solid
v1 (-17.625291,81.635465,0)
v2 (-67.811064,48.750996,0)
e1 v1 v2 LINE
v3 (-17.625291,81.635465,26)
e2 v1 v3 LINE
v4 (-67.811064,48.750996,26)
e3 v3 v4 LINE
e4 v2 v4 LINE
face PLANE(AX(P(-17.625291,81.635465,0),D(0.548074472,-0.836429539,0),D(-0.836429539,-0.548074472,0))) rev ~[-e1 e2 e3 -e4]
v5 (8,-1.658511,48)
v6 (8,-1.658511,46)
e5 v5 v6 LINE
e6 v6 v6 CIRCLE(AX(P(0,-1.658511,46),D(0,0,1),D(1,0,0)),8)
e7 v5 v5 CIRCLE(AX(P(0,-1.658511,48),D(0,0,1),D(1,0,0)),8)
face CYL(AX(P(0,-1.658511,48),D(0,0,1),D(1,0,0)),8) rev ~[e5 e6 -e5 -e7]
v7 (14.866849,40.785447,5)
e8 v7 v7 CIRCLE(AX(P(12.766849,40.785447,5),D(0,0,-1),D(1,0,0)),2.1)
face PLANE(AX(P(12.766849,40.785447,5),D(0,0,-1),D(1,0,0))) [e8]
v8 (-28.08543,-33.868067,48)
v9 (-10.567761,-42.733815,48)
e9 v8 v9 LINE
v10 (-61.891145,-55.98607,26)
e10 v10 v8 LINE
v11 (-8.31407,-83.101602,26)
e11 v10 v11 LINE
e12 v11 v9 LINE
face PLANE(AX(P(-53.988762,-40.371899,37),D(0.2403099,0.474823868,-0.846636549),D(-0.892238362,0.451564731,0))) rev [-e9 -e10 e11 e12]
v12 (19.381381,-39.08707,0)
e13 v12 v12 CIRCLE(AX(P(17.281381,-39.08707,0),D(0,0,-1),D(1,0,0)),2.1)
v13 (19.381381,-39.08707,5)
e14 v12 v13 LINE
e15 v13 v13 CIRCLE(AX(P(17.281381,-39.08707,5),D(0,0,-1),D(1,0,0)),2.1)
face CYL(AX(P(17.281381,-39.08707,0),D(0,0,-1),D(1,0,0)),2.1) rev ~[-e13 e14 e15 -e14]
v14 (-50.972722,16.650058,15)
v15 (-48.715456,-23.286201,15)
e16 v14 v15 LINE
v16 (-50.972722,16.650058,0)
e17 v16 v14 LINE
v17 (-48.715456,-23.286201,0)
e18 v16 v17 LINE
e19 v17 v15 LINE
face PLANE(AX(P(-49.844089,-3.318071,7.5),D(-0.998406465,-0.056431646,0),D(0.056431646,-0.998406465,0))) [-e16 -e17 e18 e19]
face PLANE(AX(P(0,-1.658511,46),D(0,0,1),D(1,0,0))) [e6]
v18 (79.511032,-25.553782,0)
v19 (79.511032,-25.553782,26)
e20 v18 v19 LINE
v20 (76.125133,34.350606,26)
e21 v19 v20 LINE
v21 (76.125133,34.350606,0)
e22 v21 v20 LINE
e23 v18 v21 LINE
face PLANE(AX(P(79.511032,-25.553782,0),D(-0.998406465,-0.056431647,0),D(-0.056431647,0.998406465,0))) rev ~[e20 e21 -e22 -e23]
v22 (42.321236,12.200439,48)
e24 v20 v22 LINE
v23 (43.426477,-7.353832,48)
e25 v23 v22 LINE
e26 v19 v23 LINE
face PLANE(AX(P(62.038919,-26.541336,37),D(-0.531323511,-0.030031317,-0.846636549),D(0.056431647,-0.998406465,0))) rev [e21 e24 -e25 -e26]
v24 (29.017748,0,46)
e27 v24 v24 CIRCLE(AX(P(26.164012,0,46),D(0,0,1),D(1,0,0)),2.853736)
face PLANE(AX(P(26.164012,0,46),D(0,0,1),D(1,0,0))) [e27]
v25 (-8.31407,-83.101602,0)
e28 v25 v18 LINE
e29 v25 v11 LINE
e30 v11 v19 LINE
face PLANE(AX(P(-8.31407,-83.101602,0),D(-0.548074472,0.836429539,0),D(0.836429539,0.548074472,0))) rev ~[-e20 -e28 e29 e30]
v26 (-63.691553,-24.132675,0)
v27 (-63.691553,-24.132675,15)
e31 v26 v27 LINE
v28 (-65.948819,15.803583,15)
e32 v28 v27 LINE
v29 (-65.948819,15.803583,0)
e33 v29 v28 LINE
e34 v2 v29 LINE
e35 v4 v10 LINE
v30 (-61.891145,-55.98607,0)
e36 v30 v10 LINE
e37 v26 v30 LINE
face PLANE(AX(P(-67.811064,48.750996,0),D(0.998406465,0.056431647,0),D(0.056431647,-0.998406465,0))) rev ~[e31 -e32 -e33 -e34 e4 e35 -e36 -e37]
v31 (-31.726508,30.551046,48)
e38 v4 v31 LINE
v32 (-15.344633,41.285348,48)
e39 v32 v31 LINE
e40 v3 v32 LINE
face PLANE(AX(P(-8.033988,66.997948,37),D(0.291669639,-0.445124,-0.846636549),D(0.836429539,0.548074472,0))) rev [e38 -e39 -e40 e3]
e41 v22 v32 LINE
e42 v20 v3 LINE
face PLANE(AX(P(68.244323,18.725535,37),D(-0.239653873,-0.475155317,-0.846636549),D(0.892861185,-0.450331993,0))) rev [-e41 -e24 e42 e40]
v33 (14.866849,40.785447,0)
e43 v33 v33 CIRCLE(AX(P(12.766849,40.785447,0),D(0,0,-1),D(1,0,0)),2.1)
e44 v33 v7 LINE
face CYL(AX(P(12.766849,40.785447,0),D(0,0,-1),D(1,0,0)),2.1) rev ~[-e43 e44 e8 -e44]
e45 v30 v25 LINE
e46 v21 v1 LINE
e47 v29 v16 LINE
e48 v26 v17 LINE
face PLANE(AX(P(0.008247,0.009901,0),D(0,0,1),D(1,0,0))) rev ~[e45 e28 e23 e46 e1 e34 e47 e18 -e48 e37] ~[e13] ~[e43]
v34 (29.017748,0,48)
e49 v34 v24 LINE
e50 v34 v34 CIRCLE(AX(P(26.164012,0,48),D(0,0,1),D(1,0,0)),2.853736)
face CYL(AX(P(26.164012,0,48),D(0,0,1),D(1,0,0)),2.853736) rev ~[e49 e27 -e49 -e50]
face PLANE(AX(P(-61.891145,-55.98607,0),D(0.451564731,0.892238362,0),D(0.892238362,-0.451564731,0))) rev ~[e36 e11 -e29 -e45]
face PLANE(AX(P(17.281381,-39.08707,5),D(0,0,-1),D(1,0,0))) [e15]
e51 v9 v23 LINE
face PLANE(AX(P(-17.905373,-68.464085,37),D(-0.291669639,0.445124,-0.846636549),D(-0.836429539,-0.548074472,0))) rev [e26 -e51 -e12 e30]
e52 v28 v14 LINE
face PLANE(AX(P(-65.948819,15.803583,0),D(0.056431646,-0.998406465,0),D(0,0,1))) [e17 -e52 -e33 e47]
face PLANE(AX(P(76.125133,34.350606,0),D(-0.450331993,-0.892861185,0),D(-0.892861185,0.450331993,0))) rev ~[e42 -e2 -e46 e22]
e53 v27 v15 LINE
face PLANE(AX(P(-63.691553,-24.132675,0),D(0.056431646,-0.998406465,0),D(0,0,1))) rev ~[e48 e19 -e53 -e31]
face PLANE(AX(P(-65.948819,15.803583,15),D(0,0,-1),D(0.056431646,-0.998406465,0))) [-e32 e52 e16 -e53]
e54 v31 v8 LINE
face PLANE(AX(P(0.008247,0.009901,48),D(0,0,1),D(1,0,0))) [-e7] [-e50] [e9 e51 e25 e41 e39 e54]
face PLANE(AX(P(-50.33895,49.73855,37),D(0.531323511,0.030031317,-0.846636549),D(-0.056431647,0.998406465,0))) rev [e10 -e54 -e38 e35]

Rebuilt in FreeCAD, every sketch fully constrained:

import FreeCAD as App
import Part
import Sketcher
Q = App.Units.Quantity


def edges_at(feature, points):
    """Names of the edges that pass closest to the given points."""
    edges = feature.Shape.Edges
    near = lambda p: min(range(len(edges)), key=lambda i: edges[i].distToShape(Part.Vertex(*p))[0])
    return sorted({f"Edge{near(p) + 1}" for p in points})

doc = App.newDocument("Part")
body = doc.addObject("PartDesign::Body", "Body")

sketch1 = body.newObject("Sketcher::SketchObject", "Sketch")
sketch1.AttachmentSupport = (doc.getObject("XY_Plane"), [""])
sketch1.MapMode = "FlatFace"
sketch1.addGeometry([
    Part.LineSegment(App.Vector(-8, -83, 0), App.Vector(80, -26, 0)),
    Part.LineSegment(App.Vector(80, -26, 0), App.Vector(76, 34, 0)),
    Part.LineSegment(App.Vector(76, 34, 0), App.Vector(-18, 82, 0)),
    Part.LineSegment(App.Vector(-18, 82, 0), App.Vector(-68, 49, 0)),
    Part.LineSegment(App.Vector(-68, 49, 0), App.Vector(-62, -56, 0)),
    Part.LineSegment(App.Vector(-62, -56, 0), App.Vector(-8, -83, 0)),
], False)
sketch1.addConstraint([
    Sketcher.Constraint("Coincident", 0, 2, 1, 1),
    Sketcher.Constraint("Coincident", 1, 2, 2, 1),
    Sketcher.Constraint("Coincident", 2, 2, 3, 1),
    Sketcher.Constraint("Coincident", 3, 2, 4, 1),
    Sketcher.Constraint("Coincident", 4, 2, 5, 1),
    Sketcher.Constraint("Coincident", 5, 2, 0, 1),
    Sketcher.Constraint("Parallel", 0, 3),
    Sketcher.Constraint("Parallel", 1, 4),
    Sketcher.Constraint("Equal", 0, 2),
    Sketcher.Constraint("Equal", 1, 3),
    Sketcher.Constraint("Distance", 0, Q("105 mm")),
    Sketcher.Constraint("Distance", 1, Q("60 mm")),
    Sketcher.Constraint("DistanceY", 5, 2, -1, 1, Q("83.101602 mm")),
    Sketcher.Constraint("DistanceX", 1, 2, 0, 2, Q("3.385899 mm")),
    Sketcher.Constraint("DistanceX", 5, 2, 0, 2, Q("87.825102 mm")),
    Sketcher.Constraint("DistanceY", 5, 2, 3, 2, Q("131.852598 mm")),
    Sketcher.Constraint("Distance", 5, Q("60.04794 mm")),
    Sketcher.Constraint("DistanceX", -1, 1, 0, 2, Q("79.511032 mm")),
])
pad1 = body.newObject("PartDesign::Pad", "Pad")
pad1.Profile = sketch1
pad1.Length = 48
doc.recompute()

chamfer = body.newObject("PartDesign::Chamfer", "Chamfer")
chamfer.Base = (pad1, edges_at(pad1, [
    (-35.103, -69.544, 48),
    (35.598, -54.328, 48),
    (77.818, 4.398, 48),
    (29.25, 57.993, 48),
    (-42.718, 65.193, 48),
    (-64.851, -3.618, 48),
]))
chamfer.ChamferType = "Two distances"
chamfer.Size = 22
chamfer.Size2 = 35

sketch2 = body.newObject("Sketcher::SketchObject", "Sketch001")
sketch2.AttachmentSupport = (doc.getObject("XY_Plane"), [""])
sketch2.MapMode = "FlatFace"
sketch2.AttachmentOffset = App.Placement(App.Vector(0, 0, 48), App.Rotation())
sketch2.addGeometry(Part.Circle(App.Vector(0, -2, 0), App.Vector(0, 0, 1), 8), False)
sketch2.addConstraint([
    Sketcher.Constraint("PointOnObject", 0, 3, -2),
    Sketcher.Constraint("Diameter", 0, Q("16 mm")),
    Sketcher.Constraint("DistanceY", 0, 3, -1, 1, Q("1.658511 mm")),
])
pocket1 = body.newObject("PartDesign::Pocket", "Pocket")
pocket1.Profile = sketch2
pocket1.Length = 2

sketch3 = body.newObject("Sketcher::SketchObject", "Sketch002")
sketch3.AttachmentSupport = (doc.getObject("XY_Plane"), [""])
sketch3.MapMode = "FlatFace"
sketch3.addGeometry([
    Part.Circle(App.Vector(17.3, -39.1, 0), App.Vector(0, 0, 1), 2.1),
    Part.Circle(App.Vector(12.8, 40.8, 0), App.Vector(0, 0, 1), 2.1),
], False)
sketch3.addConstraint([
    Sketcher.Constraint("Equal", 0, 1),
    Sketcher.Constraint("Diameter", 0, Q("4.2 mm")),
    Sketcher.Constraint("DistanceX", -1, 1, 0, 3, Q("17.281381 mm")),
    Sketcher.Constraint("DistanceY", 0, 3, -1, 1, Q("39.08707 mm")),
    Sketcher.Constraint("DistanceX", -1, 1, 1, 3, Q("12.766849 mm")),
    Sketcher.Constraint("DistanceY", -1, 1, 1, 3, Q("40.785447 mm")),
])
pocket2 = body.newObject("PartDesign::Pocket", "Pocket001")
pocket2.Profile = sketch3
pocket2.Length = 5
pocket2.Reversed = True

sketch4 = body.newObject("Sketcher::SketchObject", "Sketch003")
sketch4.Placement = App.Placement(App.Vector(-64.848402, -3.665343, 0), App.Rotation(App.Vector(0.056431646, -0.998406465, 0), App.Vector(0, 0, 1), App.Vector(-0.998406465, -0.056431646, 0), "ZXY"))
sketch4.addGeometry([
    Part.LineSegment(App.Vector(-20, 15, 0), App.Vector(-20, 0, 0)),
    Part.LineSegment(App.Vector(-20, 0, 0), App.Vector(20, 0, 0)),
    Part.LineSegment(App.Vector(20, 0, 0), App.Vector(20, 15, 0)),
    Part.LineSegment(App.Vector(20, 15, 0), App.Vector(-20, 15, 0)),
], False)
sketch4.addConstraint([
    Sketcher.Constraint("Coincident", 0, 2, 1, 1),
    Sketcher.Constraint("Coincident", 1, 2, 2, 1),
    Sketcher.Constraint("Coincident", 2, 2, 3, 1),
    Sketcher.Constraint("Coincident", 3, 2, 0, 1),
    Sketcher.Constraint("Vertical", 0),
    Sketcher.Constraint("Horizontal", 1),
    Sketcher.Constraint("Vertical", 2),
    Sketcher.Constraint("Horizontal", 3),
    Sketcher.Constraint("PointOnObject", 0, 2, -1),
    Sketcher.Constraint("DistanceX", 1, 1, 1, 2, Q("40 mm")),
    Sketcher.Constraint("DistanceY", 0, 2, 0, 1, Q("15 mm")),
    Sketcher.Constraint("DistanceX", 0, 2, -1, 1, Q("19.5 mm")),
])
pocket3 = body.newObject("PartDesign::Pocket", "Pocket002")
pocket3.Profile = sketch4
pocket3.Length = 15

sketch5 = body.newObject("Sketcher::SketchObject", "Sketch004")
sketch5.AttachmentSupport = (doc.getObject("XY_Plane"), [""])
sketch5.MapMode = "FlatFace"
sketch5.AttachmentOffset = App.Placement(App.Vector(0, 0, 48), App.Rotation())
sketch5.addGeometry(Part.Circle(App.Vector(26.2, 0, 0), App.Vector(0, 0, 1), 2.9), False)
sketch5.addConstraint([
    Sketcher.Constraint("PointOnObject", 0, 3, -1),
    Sketcher.Constraint("Diameter", 0, Q("5.707472 mm")),
    Sketcher.Constraint("DistanceX", -1, 1, 0, 3, Q("26.164012 mm")),
])
pocket4 = body.newObject("PartDesign::Pocket", "Pocket003")
pocket4.Profile = sketch5
pocket4.Length = 2

doc.recompute()
